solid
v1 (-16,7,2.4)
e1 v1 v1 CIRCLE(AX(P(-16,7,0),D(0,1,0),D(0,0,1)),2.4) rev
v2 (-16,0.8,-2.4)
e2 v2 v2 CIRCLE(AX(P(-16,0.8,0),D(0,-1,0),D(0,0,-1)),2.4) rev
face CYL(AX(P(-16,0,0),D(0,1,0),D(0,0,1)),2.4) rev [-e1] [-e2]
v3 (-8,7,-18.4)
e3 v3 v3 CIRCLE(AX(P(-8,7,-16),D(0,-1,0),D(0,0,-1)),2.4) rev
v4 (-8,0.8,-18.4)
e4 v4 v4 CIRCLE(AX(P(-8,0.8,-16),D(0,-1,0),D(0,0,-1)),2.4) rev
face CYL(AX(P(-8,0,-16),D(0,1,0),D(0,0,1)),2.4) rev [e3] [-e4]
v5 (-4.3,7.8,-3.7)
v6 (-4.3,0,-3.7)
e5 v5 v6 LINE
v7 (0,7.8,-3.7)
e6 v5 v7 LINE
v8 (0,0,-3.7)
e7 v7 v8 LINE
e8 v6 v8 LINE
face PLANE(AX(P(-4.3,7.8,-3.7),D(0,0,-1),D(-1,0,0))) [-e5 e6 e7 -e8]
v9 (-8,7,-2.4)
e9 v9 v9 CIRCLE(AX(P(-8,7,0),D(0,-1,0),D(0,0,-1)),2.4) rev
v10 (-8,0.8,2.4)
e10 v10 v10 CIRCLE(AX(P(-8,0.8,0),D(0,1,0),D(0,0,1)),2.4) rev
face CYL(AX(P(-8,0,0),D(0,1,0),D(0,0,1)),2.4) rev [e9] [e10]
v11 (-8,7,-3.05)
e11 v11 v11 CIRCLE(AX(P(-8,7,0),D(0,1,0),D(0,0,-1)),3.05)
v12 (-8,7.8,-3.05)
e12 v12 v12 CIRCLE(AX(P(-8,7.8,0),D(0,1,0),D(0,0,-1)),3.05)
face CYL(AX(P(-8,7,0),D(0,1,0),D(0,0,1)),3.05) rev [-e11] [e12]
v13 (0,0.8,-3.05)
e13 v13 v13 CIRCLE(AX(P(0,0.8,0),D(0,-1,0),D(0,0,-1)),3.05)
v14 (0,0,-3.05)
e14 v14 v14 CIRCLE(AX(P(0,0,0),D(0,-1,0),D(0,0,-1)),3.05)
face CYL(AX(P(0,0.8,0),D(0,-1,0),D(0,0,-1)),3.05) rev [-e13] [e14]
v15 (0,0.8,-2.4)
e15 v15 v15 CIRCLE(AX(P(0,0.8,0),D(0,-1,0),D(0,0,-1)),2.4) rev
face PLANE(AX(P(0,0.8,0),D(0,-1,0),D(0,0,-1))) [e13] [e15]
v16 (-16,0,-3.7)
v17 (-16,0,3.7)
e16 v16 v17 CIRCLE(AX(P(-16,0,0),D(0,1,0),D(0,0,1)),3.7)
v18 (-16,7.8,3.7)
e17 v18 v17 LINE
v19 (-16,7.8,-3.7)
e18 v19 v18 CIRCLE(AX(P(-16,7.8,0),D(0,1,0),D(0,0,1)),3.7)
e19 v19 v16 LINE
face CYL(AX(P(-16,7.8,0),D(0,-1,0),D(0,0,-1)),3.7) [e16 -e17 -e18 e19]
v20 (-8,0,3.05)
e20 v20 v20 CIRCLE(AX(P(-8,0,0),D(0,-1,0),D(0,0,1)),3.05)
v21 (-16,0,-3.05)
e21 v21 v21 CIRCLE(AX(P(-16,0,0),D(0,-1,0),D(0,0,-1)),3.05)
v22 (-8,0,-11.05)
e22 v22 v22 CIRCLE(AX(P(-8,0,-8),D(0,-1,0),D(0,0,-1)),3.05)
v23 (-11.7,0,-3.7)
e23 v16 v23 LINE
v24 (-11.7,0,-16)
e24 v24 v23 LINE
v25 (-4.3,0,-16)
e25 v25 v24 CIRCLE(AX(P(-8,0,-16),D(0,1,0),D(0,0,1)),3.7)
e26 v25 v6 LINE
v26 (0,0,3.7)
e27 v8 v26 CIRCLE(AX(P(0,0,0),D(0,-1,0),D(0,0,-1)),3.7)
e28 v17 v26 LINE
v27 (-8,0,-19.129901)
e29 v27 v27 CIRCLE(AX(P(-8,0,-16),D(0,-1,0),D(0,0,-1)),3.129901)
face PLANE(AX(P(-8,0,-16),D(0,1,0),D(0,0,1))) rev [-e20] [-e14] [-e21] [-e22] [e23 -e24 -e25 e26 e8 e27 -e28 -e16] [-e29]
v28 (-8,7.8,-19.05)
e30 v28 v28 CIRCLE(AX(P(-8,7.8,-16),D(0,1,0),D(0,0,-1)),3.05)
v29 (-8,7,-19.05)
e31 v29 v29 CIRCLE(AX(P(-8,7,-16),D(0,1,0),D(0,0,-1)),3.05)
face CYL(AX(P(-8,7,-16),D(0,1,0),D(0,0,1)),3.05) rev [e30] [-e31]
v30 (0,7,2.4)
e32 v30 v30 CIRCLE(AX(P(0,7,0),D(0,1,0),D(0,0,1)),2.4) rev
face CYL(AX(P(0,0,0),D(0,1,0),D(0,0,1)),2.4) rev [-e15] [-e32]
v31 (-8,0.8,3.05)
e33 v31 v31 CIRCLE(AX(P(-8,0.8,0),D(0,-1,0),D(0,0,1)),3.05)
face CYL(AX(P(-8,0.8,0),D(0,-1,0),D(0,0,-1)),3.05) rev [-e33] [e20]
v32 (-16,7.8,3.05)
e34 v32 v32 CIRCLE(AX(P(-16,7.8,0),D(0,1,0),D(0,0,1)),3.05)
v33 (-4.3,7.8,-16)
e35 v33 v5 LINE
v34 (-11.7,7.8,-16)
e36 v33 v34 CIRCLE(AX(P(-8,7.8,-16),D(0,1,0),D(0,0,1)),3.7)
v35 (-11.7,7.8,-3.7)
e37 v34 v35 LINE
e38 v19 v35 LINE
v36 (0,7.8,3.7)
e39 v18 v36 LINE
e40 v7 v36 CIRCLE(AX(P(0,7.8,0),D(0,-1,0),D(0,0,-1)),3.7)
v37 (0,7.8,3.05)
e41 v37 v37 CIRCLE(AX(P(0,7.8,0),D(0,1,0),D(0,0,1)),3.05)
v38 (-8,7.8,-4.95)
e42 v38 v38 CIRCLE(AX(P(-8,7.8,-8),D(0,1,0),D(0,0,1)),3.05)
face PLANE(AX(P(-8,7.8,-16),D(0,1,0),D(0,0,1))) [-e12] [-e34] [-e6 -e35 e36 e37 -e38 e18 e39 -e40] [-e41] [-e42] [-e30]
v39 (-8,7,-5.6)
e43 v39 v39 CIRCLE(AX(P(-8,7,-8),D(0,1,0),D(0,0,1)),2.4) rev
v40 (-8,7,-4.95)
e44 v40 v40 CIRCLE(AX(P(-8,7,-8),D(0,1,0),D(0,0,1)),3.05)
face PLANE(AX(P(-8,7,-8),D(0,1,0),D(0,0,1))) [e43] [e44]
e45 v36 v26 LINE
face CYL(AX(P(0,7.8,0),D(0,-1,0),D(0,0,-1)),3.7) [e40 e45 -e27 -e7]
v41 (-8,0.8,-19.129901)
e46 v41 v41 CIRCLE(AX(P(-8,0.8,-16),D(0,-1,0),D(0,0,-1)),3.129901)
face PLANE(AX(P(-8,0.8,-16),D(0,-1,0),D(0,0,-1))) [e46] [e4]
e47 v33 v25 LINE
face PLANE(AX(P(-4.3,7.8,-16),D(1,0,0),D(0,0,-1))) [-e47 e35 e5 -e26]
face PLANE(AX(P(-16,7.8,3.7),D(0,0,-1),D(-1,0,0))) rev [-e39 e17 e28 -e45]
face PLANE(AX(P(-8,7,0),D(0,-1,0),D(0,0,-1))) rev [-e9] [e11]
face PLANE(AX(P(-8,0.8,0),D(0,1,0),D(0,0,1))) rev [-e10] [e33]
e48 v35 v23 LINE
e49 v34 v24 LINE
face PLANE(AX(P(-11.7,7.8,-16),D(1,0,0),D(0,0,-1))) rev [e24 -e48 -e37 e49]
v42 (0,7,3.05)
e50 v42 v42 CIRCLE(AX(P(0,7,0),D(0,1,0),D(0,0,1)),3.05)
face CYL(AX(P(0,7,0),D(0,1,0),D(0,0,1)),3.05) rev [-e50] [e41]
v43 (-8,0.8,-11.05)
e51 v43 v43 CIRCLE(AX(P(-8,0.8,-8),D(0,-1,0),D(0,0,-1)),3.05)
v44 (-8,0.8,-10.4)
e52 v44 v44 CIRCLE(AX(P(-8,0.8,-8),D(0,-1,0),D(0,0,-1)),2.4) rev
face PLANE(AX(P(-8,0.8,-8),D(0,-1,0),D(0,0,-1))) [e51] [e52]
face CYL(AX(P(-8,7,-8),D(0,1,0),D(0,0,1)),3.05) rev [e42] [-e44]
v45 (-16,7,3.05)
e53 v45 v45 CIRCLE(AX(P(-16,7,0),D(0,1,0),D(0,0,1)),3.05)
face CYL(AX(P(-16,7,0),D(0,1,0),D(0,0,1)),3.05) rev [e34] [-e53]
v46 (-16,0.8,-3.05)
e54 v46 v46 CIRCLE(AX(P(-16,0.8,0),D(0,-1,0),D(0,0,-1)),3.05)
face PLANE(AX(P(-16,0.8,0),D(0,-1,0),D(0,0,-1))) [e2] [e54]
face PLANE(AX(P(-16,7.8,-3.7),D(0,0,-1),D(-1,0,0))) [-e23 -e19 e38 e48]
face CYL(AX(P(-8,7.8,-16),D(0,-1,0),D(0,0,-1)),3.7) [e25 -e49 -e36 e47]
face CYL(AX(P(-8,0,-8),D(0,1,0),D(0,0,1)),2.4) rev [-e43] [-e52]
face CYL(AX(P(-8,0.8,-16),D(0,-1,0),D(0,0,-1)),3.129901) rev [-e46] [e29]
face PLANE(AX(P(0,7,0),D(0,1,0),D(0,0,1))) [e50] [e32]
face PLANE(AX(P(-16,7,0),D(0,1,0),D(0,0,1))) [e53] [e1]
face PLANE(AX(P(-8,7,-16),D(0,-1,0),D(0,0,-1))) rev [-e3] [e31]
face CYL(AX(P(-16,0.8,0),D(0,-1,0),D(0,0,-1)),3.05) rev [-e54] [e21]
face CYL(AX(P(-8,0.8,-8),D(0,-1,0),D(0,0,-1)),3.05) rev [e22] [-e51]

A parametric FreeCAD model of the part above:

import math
import FreeCAD as App
import Part
import Sketcher

V = App.Vector

doc = App.newDocument("Part")
body = doc.addObject("PartDesign::Body", "Body")

# Sketch on XZ plane
sketch1 = doc.addObject("Sketcher::SketchObject", "Sketch")
body.addObject(sketch1)
sketch1.AttachmentSupport = (doc.XZ_Plane, [""])
sketch1.MapMode = "FlatFace"
sketch1.addGeometry(Part.LineSegment(V(-16, 3.7, 0), V(0, 3.7, 0)), False)
sketch1.addGeometry(Part.ArcOfCircle(Part.Circle(V(0, 0, 0), V(0, 0, 1), 3.7), math.radians(-90), math.radians(90)), False)
sketch1.addGeometry(Part.LineSegment(V(0, -3.7, 0), V(-4.3, -3.7, 0)), False)
sketch1.addGeometry(Part.LineSegment(V(-4.3, -3.7, 0), V(-4.3, -16, 0)), False)
sketch1.addGeometry(Part.ArcOfCircle(Part.Circle(V(-8, -16, 0), V(0, 0, 1), 3.7), math.radians(180), math.radians(360)), False)
sketch1.addGeometry(Part.LineSegment(V(-11.7, -16, 0), V(-11.7, -3.7, 0)), False)
sketch1.addGeometry(Part.LineSegment(V(-11.7, -3.7, 0), V(-16, -3.7, 0)), False)
sketch1.addGeometry(Part.ArcOfCircle(Part.Circle(V(-16, 0, 0), V(0, 0, 1), 3.7), math.radians(90), math.radians(270)), False)
sketch1.addConstraint(Sketcher.Constraint("Tangent", 0, 2, 1, 2))
sketch1.addConstraint(Sketcher.Constraint("Tangent", 1, 1, 2, 1))
sketch1.addConstraint(Sketcher.Constraint("Coincident", 2, 2, 3, 1))
sketch1.addConstraint(Sketcher.Constraint("Tangent", 3, 2, 4, 2))
sketch1.addConstraint(Sketcher.Constraint("Tangent", 4, 1, 5, 1))
sketch1.addConstraint(Sketcher.Constraint("Coincident", 5, 2, 6, 1))
sketch1.addConstraint(Sketcher.Constraint("Tangent", 6, 2, 7, 2))
sketch1.addConstraint(Sketcher.Constraint("Tangent", 7, 1, 0, 1))
sketch1.addConstraint(Sketcher.Constraint("Horizontal", 0))
sketch1.addConstraint(Sketcher.Constraint("Horizontal", 2))
sketch1.addConstraint(Sketcher.Constraint("Vertical", 3))
sketch1.addConstraint(Sketcher.Constraint("Vertical", 5))
sketch1.addConstraint(Sketcher.Constraint("Horizontal", 6))
sketch1.addConstraint(Sketcher.Constraint("Coincident", 1, 3, -1, 1))
sketch1.addConstraint(Sketcher.Constraint("Equal", 1, 4))
sketch1.addConstraint(Sketcher.Constraint("Equal", 4, 7))
sketch1.addConstraint(Sketcher.Constraint("Equal", 2, 6))
sketch1.addConstraint(Sketcher.Constraint("Radius", 1, 3.7))
sketch1.addConstraint(Sketcher.Constraint("DistanceX", 0, 1, 0, 2, 16.0))
sketch1.addConstraint(Sketcher.Constraint("DistanceY", 3, 2, 3, 1, 12.3))
pad1 = doc.addObject("PartDesign::Pad", "Pad")
body.addObject(pad1)
pad1.Profile = sketch1
pad1.Length = 7.8
pad1.Reversed = True

# Sketch on XZ plane
sketch2 = doc.addObject("Sketcher::SketchObject", "Sketch001")
body.addObject(sketch2)
sketch2.AttachmentSupport = (doc.XZ_Plane, [""])
sketch2.MapMode = "FlatFace"
sketch2.AttachmentOffset = App.Placement(V(0, 0, -7.8), App.Rotation())
sketch2.addGeometry(Part.Circle(V(0, 0, 0), V(0, 0, 1), 2.4), False)
sketch2.addGeometry(Part.Circle(V(-16, 0, 0), V(0, 0, 1), 2.4), False)
sketch2.addGeometry(Part.Circle(V(-8, 0, 0), V(0, 0, 1), 2.4), False)
sketch2.addGeometry(Part.Circle(V(-8, -8, 0), V(0, 0, 1), 2.4), False)
sketch2.addGeometry(Part.Circle(V(-8, -16, 0), V(0, 0, 1), 2.4), False)
sketch2.addConstraint(Sketcher.Constraint("Coincident", 0, 3, -1, 1))
sketch2.addConstraint(Sketcher.Constraint("Equal", 0, 1))
sketch2.addConstraint(Sketcher.Constraint("Equal", 1, 2))
sketch2.addConstraint(Sketcher.Constraint("Equal", 2, 3))
sketch2.addConstraint(Sketcher.Constraint("Equal", 3, 4))
sketch2.addConstraint(Sketcher.Constraint("PointOnObject", 1, 3, -1))
sketch2.addConstraint(Sketcher.Constraint("PointOnObject", 2, 3, -1))
sketch2.addConstraint(Sketcher.Constraint("Vertical", 2, 3, 3, 3))
sketch2.addConstraint(Sketcher.Constraint("Vertical", 3, 3, 4, 3))
sketch2.addConstraint(Sketcher.Constraint("Diameter", 0, 4.8))
sketch2.addConstraint(Sketcher.Constraint("DistanceX", 1, 3, -1, 1, 16.0))
sketch2.addConstraint(Sketcher.Constraint("DistanceX", 2, 3, -1, 1, 8.0))
sketch2.addConstraint(Sketcher.Constraint("DistanceY", 3, 3, -1, 1, 8.0))
sketch2.addConstraint(Sketcher.Constraint("DistanceY", 4, 3, -1, 1, 16.0))
pocket1 = doc.addObject("PartDesign::Pocket", "Pocket")
body.addObject(pocket1)
pocket1.Profile = sketch2
pocket1.Length = 7.8
pocket1.Reversed = True

# Sketch on XZ plane
sketch3 = doc.addObject("Sketcher::SketchObject", "Sketch002")
body.addObject(sketch3)
sketch3.AttachmentSupport = (doc.XZ_Plane, [""])
sketch3.MapMode = "FlatFace"
sketch3.AttachmentOffset = App.Placement(V(0, 0, -7.8), App.Rotation())
sketch3.addGeometry(Part.Circle(V(0, 0, 0), V(0, 0, 1), 3), False)
sketch3.addGeometry(Part.Circle(V(-16, 0, 0), V(0, 0, 1), 3), False)
sketch3.addGeometry(Part.Circle(V(-8, 0, 0), V(0, 0, 1), 3), False)
sketch3.addGeometry(Part.Circle(V(-8, -8, 0), V(0, 0, 1), 3), False)
sketch3.addGeometry(Part.Circle(V(-8, -16, 0), V(0, 0, 1), 3), False)
sketch3.addConstraint(Sketcher.Constraint("Coincident", 0, 3, -1, 1))
sketch3.addConstraint(Sketcher.Constraint("Equal", 0, 1))
sketch3.addConstraint(Sketcher.Constraint("Equal", 1, 2))
sketch3.addConstraint(Sketcher.Constraint("Equal", 2, 3))
sketch3.addConstraint(Sketcher.Constraint("Equal", 3, 4))
sketch3.addConstraint(Sketcher.Constraint("PointOnObject", 1, 3, -1))
sketch3.addConstraint(Sketcher.Constraint("PointOnObject", 2, 3, -1))
sketch3.addConstraint(Sketcher.Constraint("Vertical", 2, 3, 3, 3))
sketch3.addConstraint(Sketcher.Constraint("Vertical", 3, 3, 4, 3))
sketch3.addConstraint(Sketcher.Constraint("Diameter", 0, 6.1))
sketch3.addConstraint(Sketcher.Constraint("DistanceX", 1, 3, -1, 1, 16.0))
sketch3.addConstraint(Sketcher.Constraint("DistanceX", 2, 3, -1, 1, 8.0))
sketch3.addConstraint(Sketcher.Constraint("DistanceY", 3, 3, -1, 1, 8.0))
sketch3.addConstraint(Sketcher.Constraint("DistanceY", 4, 3, -1, 1, 16.0))
pocket2 = doc.addObject("PartDesign::Pocket", "Pocket001")
body.addObject(pocket2)
pocket2.Profile = sketch3
pocket2.Length = 0.8
pocket2.Reversed = True

# Sketch on XZ plane
sketch4 = doc.addObject("Sketcher::SketchObject", "Sketch003")
body.addObject(sketch4)
sketch4.AttachmentSupport = (doc.XZ_Plane, [""])
sketch4.MapMode = "FlatFace"
sketch4.addGeometry(Part.Circle(V(0, 0, 0), V(0, 0, 1), 3), False)
sketch4.addGeometry(Part.Circle(V(-16, 0, 0), V(0, 0, 1), 3), False)
sketch4.addGeometry(Part.Circle(V(-8, 0, 0), V(0, 0, 1), 3), False)
sketch4.addGeometry(Part.Circle(V(-8, -16, 0), V(0, 0, 1), 3.1), False)
sketch4.addGeometry(Part.Circle(V(-8, -8, 0), V(0, 0, 1), 3), False)
sketch4.addConstraint(Sketcher.Constraint("Coincident", 0, 3, -1, 1))
sketch4.addConstraint(Sketcher.Constraint("Equal", 0, 1))
sketch4.addConstraint(Sketcher.Constraint("Equal", 1, 2))
sketch4.addConstraint(Sketcher.Constraint("Equal", 2, 4))
sketch4.addConstraint(Sketcher.Constraint("PointOnObject", 1, 3, -1))
sketch4.addConstraint(Sketcher.Constraint("PointOnObject", 2, 3, -1))
sketch4.addConstraint(Sketcher.Constraint("Vertical", 2, 3, 3, 3))
sketch4.addConstraint(Sketcher.Constraint("Vertical", 3, 3, 4, 3))
sketch4.addConstraint(Sketcher.Constraint("Diameter", 0, 6.1))
sketch4.addConstraint(Sketcher.Constraint("DistanceX", 1, 3, -1, 1, 16.0))
sketch4.addConstraint(Sketcher.Constraint("DistanceX", 2, 3, -1, 1, 8.0))
sketch4.addConstraint(Sketcher.Constraint("DistanceY", 3, 3, -1, 1, 16.0))
sketch4.addConstraint(Sketcher.Constraint("DistanceY", 4, 3, -1, 1, 8.0))
sketch4.addConstraint(Sketcher.Constraint("Diameter", 3, 6.259802))
pocket3 = doc.addObject("PartDesign::Pocket", "Pocket002")
body.addObject(pocket3)
pocket3.Profile = sketch4
pocket3.Length = 0.8

doc.recompute()
